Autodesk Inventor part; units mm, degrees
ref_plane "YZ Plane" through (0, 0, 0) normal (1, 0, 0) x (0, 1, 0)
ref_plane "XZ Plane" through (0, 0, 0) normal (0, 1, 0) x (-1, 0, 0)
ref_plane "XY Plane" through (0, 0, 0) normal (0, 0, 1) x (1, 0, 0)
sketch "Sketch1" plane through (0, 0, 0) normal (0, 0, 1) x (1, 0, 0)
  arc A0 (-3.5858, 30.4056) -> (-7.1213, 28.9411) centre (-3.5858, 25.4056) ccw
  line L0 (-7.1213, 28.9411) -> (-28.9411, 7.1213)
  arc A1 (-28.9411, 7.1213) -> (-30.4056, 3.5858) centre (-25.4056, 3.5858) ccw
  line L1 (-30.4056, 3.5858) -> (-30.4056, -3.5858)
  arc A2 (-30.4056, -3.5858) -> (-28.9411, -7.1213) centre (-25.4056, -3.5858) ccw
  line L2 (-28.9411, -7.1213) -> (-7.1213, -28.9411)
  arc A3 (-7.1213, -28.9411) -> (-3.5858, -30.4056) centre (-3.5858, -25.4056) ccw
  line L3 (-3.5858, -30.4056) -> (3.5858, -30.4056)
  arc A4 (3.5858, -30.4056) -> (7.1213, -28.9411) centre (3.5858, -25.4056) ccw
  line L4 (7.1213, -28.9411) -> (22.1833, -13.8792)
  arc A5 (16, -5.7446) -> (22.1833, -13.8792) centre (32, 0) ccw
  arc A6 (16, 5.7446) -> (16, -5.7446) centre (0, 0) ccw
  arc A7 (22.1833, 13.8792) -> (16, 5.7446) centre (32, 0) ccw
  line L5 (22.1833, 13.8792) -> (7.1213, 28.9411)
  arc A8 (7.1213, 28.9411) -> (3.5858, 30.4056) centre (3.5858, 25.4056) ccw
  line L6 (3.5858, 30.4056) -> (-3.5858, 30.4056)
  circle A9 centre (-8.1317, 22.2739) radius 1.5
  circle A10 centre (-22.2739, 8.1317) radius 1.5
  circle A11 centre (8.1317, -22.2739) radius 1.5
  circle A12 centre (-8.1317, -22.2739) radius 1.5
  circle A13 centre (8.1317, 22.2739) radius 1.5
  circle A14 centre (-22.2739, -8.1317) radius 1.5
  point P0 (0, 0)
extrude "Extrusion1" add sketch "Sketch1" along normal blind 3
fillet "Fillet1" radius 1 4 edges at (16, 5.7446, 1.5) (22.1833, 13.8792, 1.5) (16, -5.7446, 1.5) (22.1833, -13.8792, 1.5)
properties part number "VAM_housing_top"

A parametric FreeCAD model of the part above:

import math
import FreeCAD as App
import Part
import Sketcher

V = App.Vector


def edges_at(feature, points):
    """Names of the edges that pass closest to the given points."""
    edges = feature.Shape.Edges
    near = lambda p: min(range(len(edges)), key=lambda i: edges[i].distToShape(Part.Vertex(*p))[0])
    return sorted({f"Edge{near(p) + 1}" for p in points})

doc = App.newDocument("Part")
params = doc.addObject("Spreadsheet::Sheet", "Params")
for row, (alias, value) in enumerate([
    ("sketch1_diameter", "3 mm"),
    ("sketch1_radius", "5 mm"),
    ("sketch1_radius2", "17 mm"),
    ("pad1_length", "3 mm"),
    ("fillet_radius", "1 mm"),
], start=1):
    params.set(f"A{row}", alias)
    params.set(f"B{row}", "=" + value)
    params.setAlias(f"B{row}", alias)

body = doc.addObject("PartDesign::Body", "Body")

# Sketch on XY plane
sketch1 = body.newObject("Sketcher::SketchObject", "Sketch")
sketch1.AttachmentSupport = (doc.getObject("XY_Plane"), [""])
sketch1.MapMode = "FlatFace"
sketch1.addGeometry([
    Part.LineSegment(V(3.6, 30.4, 0), V(-3.6, 30.4, 0)),  # 0
    Part.ArcOfCircle(Part.Circle(V(-3.6, 25.4, 0), V(0, 0, 1), 5), math.radians(90), math.radians(135)),  # 1
    Part.LineSegment(V(-7.1, 28.9, 0), V(-28.9, 7.1, 0)),  # 2
    Part.ArcOfCircle(Part.Circle(V(-25.4, 3.6, 0), V(0, 0, 1), 5), math.radians(135), math.radians(180)),  # 3
    Part.LineSegment(V(-30.4, 3.6, 0), V(-30.4, -3.6, 0)),  # 4
    Part.ArcOfCircle(Part.Circle(V(-25.4, -3.6, 0), V(0, 0, 1), 5), math.radians(180), math.radians(225)),  # 5
    Part.LineSegment(V(-28.9, -7.1, 0), V(-7.1, -28.9, 0)),  # 6
    Part.ArcOfCircle(Part.Circle(V(-3.6, -25.4, 0), V(0, 0, 1), 5), math.radians(-135), math.radians(-90)),  # 7
    Part.LineSegment(V(-3.6, -30.4, 0), V(3.6, -30.4, 0)),  # 8
    Part.ArcOfCircle(Part.Circle(V(3.6, -25.4, 0), V(0, 0, 1), 5), math.radians(-90), math.radians(-45)),  # 9
    Part.LineSegment(V(7.1, -28.9, 0), V(22.2, -13.9, 0)),  # 10
    Part.ArcOfCircle(Part.Circle(V(32, 0, 0), V(0, 0, 1), 17), math.radians(-160), math.radians(-125)),  # 11
    Part.ArcOfCircle(Part.Circle(V(0, 0, 0), V(0, 0, 1), 17), math.radians(20), math.radians(340)),  # 12
    Part.ArcOfCircle(Part.Circle(V(32, 0, 0), V(0, 0, 1), 17), math.radians(125), math.radians(160)),  # 13
    Part.LineSegment(V(22.2, 13.9, 0), V(7.1, 28.9, 0)),  # 14
    Part.ArcOfCircle(Part.Circle(V(3.6, 25.4, 0), V(0, 0, 1), 5), math.radians(45), math.radians(90)),  # 15
    Part.Circle(V(-8.1, -22.3, 0), V(0, 0, 1), 1.5),  # 16
    Part.Circle(V(-22.3, -8.1, 0), V(0, 0, 1), 1.5),  # 17
    Part.Circle(V(8.1, -22.3, 0), V(0, 0, 1), 1.5),  # 18
    Part.Circle(V(-22.3, 8.1, 0), V(0, 0, 1), 1.5),  # 19
    Part.Circle(V(-8.1, 22.3, 0), V(0, 0, 1), 1.5),  # 20
    Part.Circle(V(8.1, 22.3, 0), V(0, 0, 1), 1.5),  # 21
], False)
sketch1.addConstraint([
    Sketcher.Constraint("Tangent", 0, 2, 1, 1),
    Sketcher.Constraint("Tangent", 1, 2, 2, 1),
    Sketcher.Constraint("Tangent", 2, 2, 3, 1),
    Sketcher.Constraint("Tangent", 3, 2, 4, 1),
    Sketcher.Constraint("Tangent", 4, 2, 5, 1),
    Sketcher.Constraint("Tangent", 5, 2, 6, 1),
    Sketcher.Constraint("Tangent", 6, 2, 7, 1),
    Sketcher.Constraint("Tangent", 7, 2, 8, 1),
    Sketcher.Constraint("Tangent", 8, 2, 9, 1),
    Sketcher.Constraint("Tangent", 9, 2, 10, 1),
    Sketcher.Constraint("Coincident", 10, 2, 11, 2),
    Sketcher.Constraint("Coincident", 11, 1, 12, 2),
    Sketcher.Constraint("Coincident", 12, 1, 13, 2),
    Sketcher.Constraint("Coincident", 13, 1, 14, 1),
    Sketcher.Constraint("Tangent", 14, 2, 15, 1),
    Sketcher.Constraint("Tangent", 15, 2, 0, 1),
    Sketcher.Constraint("Horizontal", 0),
    Sketcher.Constraint("Vertical", 4),
    Sketcher.Constraint("Horizontal", 8),
    Sketcher.Constraint("Coincident", 12, 3, -1, 1),
    Sketcher.Constraint("Coincident", 13, 3, 11, 3),
    Sketcher.Constraint("Equal", 1, 3),
    Sketcher.Constraint("Equal", 3, 5),
    Sketcher.Constraint("Equal", 5, 7),
    Sketcher.Constraint("Equal", 7, 9),
    Sketcher.Constraint("Equal", 11, 12),
    Sketcher.Constraint("Equal", 12, 13),
    Sketcher.Constraint("Equal", 9, 15),
    Sketcher.Constraint("Equal", 16, 17),
    Sketcher.Constraint("Equal", 17, 18),
    Sketcher.Constraint("Equal", 18, 19),
    Sketcher.Constraint("Equal", 19, 20),
    Sketcher.Constraint("Equal", 20, 21),
    Sketcher.Constraint("Symmetric", 1, 3, 9, 3, -1, 1),
    Sketcher.Constraint("Symmetric", 18, 3, 20, 3, -1, 1),
    Sketcher.Constraint("Symmetric", 16, 3, 21, 3, -1, 1),
    Sketcher.Constraint("Symmetric", 6, 2, 14, 2, -1, 1),
    Sketcher.Constraint("Symmetric", 16, 3, 18, 3, -2),
    Sketcher.Constraint("Symmetric", 6, 2, 9, 2, -2),
    Sketcher.Constraint("Symmetric", 17, 3, 19, 3, -1),
    Sketcher.Constraint("PointOnObject", 11, 3, -1),
    Sketcher.Constraint("Perpendicular", 2, 6),
    Sketcher.Constraint("Perpendicular", 6, 10),
    Sketcher.Constraint("Equal", 8, 4),
    Sketcher.Constraint("Diameter", 16, 3.0),
    Sketcher.Constraint("Radius", 1, 5.0),
    Sketcher.Constraint("Radius", 11, 17.0),
    Sketcher.Constraint("DistanceX", -1, 1, 11, 3, 32.0),
    Sketcher.Constraint("DistanceX", 0, 2, 0, 1, 7.1716),
    Sketcher.Constraint("DistanceY", 16, 3, -1, 1, 22.274),
    Sketcher.Constraint("DistanceX", 17, 3, -1, 1, 22.274),
    Sketcher.Constraint("DistanceX", 2, 2, -1, 1, 28.941),
    Sketcher.Constraint("DistanceX", 16, 3, 7, 3, 4.546),
    Sketcher.Constraint("DistanceY", 17, 3, 5, 3, 4.546),
])
sketch1.setExpression("Constraints[44]", "Params.sketch1_diameter")
sketch1.setExpression("Constraints[45]", "Params.sketch1_radius")
sketch1.setExpression("Constraints[46]", "Params.sketch1_radius2")
pad1 = body.newObject("PartDesign::Pad", "Pad")
pad1.Profile = sketch1
pad1.setExpression("Length", "Params.pad1_length")
doc.recompute()

fillet = body.newObject("PartDesign::Fillet", "Fillet")
fillet.Base = (pad1, edges_at(pad1, [
    (16, 5.745, 1.5),
    (22.183, 13.879, 1.5),
    (16, -5.745, 1.5),
    (22.183, -13.879, 1.5),
]))
fillet.setExpression("Radius", "Params.fillet_radius")

doc.recompute()
